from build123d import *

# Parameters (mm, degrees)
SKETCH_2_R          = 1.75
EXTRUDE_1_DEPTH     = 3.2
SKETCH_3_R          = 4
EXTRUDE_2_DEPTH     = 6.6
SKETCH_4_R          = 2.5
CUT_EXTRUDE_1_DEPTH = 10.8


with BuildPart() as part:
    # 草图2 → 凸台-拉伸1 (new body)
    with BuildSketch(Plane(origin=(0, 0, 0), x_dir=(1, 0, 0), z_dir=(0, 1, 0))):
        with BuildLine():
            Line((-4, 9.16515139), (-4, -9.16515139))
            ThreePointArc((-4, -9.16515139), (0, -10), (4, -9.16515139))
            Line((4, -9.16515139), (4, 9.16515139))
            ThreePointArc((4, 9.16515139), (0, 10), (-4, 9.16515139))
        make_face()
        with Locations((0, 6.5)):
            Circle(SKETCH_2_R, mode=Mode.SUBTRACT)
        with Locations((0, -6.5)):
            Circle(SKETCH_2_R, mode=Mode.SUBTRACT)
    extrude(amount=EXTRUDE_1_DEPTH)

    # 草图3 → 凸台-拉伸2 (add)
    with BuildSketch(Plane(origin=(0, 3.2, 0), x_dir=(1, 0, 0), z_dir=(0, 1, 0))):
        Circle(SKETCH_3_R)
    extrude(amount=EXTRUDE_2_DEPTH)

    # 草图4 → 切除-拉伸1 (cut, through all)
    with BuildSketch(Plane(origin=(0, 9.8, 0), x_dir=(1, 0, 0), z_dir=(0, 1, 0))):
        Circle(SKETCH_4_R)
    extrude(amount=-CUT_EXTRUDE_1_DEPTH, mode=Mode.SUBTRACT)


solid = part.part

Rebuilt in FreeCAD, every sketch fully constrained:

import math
import FreeCAD as App
import Part
import Sketcher

doc = App.newDocument("Part")
body = doc.addObject("PartDesign::Body", "Body")

# Sketch on XZ plane
sketch1 = doc.addObject("Sketcher::SketchObject", "Sketch")
body.addObject(sketch1)
sketch1.AttachmentSupport = (doc.XZ_Plane, [""])
sketch1.MapMode = "FlatFace"
sketch1.addGeometry(Part.LineSegment(App.Vector(-4, -9.2, 0), App.Vector(-4, 9.2, 0)), False)
sketch1.addGeometry(Part.ArcOfCircle(Part.Circle(App.Vector(0, 0, 0), App.Vector(0, 0, 1), 10), math.radians(66), math.radians(114)), False)
sketch1.addGeometry(Part.LineSegment(App.Vector(4, 9.2, 0), App.Vector(4, -9.2, 0)), False)
sketch1.addGeometry(Part.ArcOfCircle(Part.Circle(App.Vector(0, 0, 0), App.Vector(0, 0, 1), 10), math.radians(-114), math.radians(-66)), False)
sketch1.addGeometry(Part.Circle(App.Vector(0, 6.5, 0), App.Vector(0, 0, 1), 1.8), False)
sketch1.addGeometry(Part.Circle(App.Vector(0, -6.5, 0), App.Vector(0, 0, 1), 1.8), False)
sketch1.addConstraint(Sketcher.Constraint("Coincident", 0, 2, 1, 2))
sketch1.addConstraint(Sketcher.Constraint("Coincident", 1, 1, 2, 1))
sketch1.addConstraint(Sketcher.Constraint("Coincident", 2, 2, 3, 2))
sketch1.addConstraint(Sketcher.Constraint("Coincident", 3, 1, 0, 1))
sketch1.addConstraint(Sketcher.Constraint("Vertical", 0))
sketch1.addConstraint(Sketcher.Constraint("Vertical", 2))
sketch1.addConstraint(Sketcher.Constraint("Coincident", 1, 3, -1, 1))
sketch1.addConstraint(Sketcher.Constraint("Coincident", 3, 3, -1, 1))
sketch1.addConstraint(Sketcher.Constraint("Equal", 1, 3))
sketch1.addConstraint(Sketcher.Constraint("Equal", 4, 5))
sketch1.addConstraint(Sketcher.Constraint("Symmetric", 4, 3, 5, 3, -1, 1))
sketch1.addConstraint(Sketcher.Constraint("PointOnObject", 4, 3, -2))
sketch1.addConstraint(Sketcher.Constraint("Horizontal", 0, 2, 1, 1))
sketch1.addConstraint(Sketcher.Constraint("Radius", 1, 10.0))
sketch1.addConstraint(Sketcher.Constraint("Diameter", 4, 3.5))
sketch1.addConstraint(Sketcher.Constraint("DistanceX", 0, 2, -1, 1, 4.0))
sketch1.addConstraint(Sketcher.Constraint("DistanceY", 5, 3, 4, 3, 13.0))
pad1 = doc.addObject("PartDesign::Pad", "Pad")
body.addObject(pad1)
pad1.Profile = sketch1
pad1.Length = 3.2
pad1.Reversed = True

# Sketch on XZ plane
sketch2 = doc.addObject("Sketcher::SketchObject", "Sketch001")
body.addObject(sketch2)
sketch2.AttachmentSupport = (doc.XZ_Plane, [""])
sketch2.MapMode = "FlatFace"
sketch2.AttachmentOffset = App.Placement(App.Vector(0, 0, -3.2), App.Rotation())
sketch2.addGeometry(Part.Circle(App.Vector(0, 0, 0), App.Vector(0, 0, 1), 4), False)
sketch2.addConstraint(Sketcher.Constraint("Coincident", 0, 3, -1, 1))
sketch2.addConstraint(Sketcher.Constraint("Diameter", 0, 8.0))
pad2 = doc.addObject("PartDesign::Pad", "Pad001")
body.addObject(pad2)
pad2.Profile = sketch2
pad2.Length = 6.6
pad2.Reversed = True

# Sketch on XZ plane
sketch3 = doc.addObject("Sketcher::SketchObject", "Sketch002")
body.addObject(sketch3)
sketch3.AttachmentSupport = (doc.XZ_Plane, [""])
sketch3.MapMode = "FlatFace"
sketch3.AttachmentOffset = App.Placement(App.Vector(0, 0, -9.8), App.Rotation())
sketch3.addGeometry(Part.Circle(App.Vector(0, 0, 0), App.Vector(0, 0, 1), 2.5), False)
sketch3.addConstraint(Sketcher.Constraint("Coincident", 0, 3, -1, 1))
sketch3.addConstraint(Sketcher.Constraint("Diameter", 0, 5.0))
pocket1 = doc.addObject("PartDesign::Pocket", "Pocket")
body.addObject(pocket1)
pocket1.Profile = sketch3
pocket1.Type = "ThroughAll"
pocket1.Reversed = True

doc.recompute()
